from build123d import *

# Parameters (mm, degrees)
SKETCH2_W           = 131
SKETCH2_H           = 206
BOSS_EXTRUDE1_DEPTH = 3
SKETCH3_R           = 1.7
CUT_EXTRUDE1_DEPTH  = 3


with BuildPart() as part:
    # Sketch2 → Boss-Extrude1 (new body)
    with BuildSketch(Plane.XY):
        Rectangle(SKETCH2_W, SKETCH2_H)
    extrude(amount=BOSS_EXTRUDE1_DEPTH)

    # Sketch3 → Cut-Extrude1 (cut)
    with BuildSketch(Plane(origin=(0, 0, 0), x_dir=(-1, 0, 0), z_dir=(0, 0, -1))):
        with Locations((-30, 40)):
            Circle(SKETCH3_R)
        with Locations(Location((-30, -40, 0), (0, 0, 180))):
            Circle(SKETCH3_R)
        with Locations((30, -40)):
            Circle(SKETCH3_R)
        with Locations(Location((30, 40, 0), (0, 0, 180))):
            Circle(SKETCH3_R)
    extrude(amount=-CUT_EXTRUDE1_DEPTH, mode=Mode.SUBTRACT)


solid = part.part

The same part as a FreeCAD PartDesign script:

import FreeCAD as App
import Part
import Sketcher
Q = App.Units.Quantity


def add_polygon(sketch, points):
    """Adds a closed chain of lines whose ends are joined by coincident constraints."""
    first, n = sketch.GeometryCount, len(points)
    for a, b in zip(points, points[1:] + points[:1]):
        sketch.addGeometry(Part.LineSegment(App.Vector(*a, 0), App.Vector(*b, 0)), False)
    for i in range(n):
        sketch.addConstraint(Sketcher.Constraint("Coincident", first + i, 2, first + (i + 1) % n, 1))

doc = App.newDocument("Part")
body = doc.addObject("PartDesign::Body", "Body")

sketch1 = body.newObject("Sketcher::SketchObject", "Sketch")
sketch1.AttachmentSupport = (doc.getObject("XY_Plane"), [""])
sketch1.MapMode = "FlatFace"
add_polygon(sketch1, [(-66, 103), (-66, -103), (66, -103), (66, 103)])
sketch1.addConstraint([
    Sketcher.Constraint("Vertical", 0),
    Sketcher.Constraint("Horizontal", 1),
    Sketcher.Constraint("Vertical", 2),
    Sketcher.Constraint("Horizontal", 3),
    Sketcher.Constraint("Symmetric", 0, 2, 2, 2, -1, 1),
    Sketcher.Constraint("DistanceX", 1, 1, 1, 2, Q("131 mm")),
    Sketcher.Constraint("DistanceY", 0, 2, 0, 1, Q("206 mm")),
])
pad1 = body.newObject("PartDesign::Pad", "Pad")
pad1.Profile = sketch1
pad1.Length = 3

sketch2 = body.newObject("Sketcher::SketchObject", "Sketch001")
sketch2.AttachmentSupport = (doc.getObject("XY_Plane"), [""])
sketch2.MapMode = "FlatFace"
sketch2.addGeometry([
    Part.Circle(App.Vector(30, 40, 0), App.Vector(0, 0, 1), 1.7),
    Part.Circle(App.Vector(30, -40, 0), App.Vector(0, 0, 1), 1.7),
    Part.Circle(App.Vector(-30, -40, 0), App.Vector(0, 0, 1), 1.7),
    Part.Circle(App.Vector(-30, 40, 0), App.Vector(0, 0, 1), 1.7),
], False)
sketch2.addConstraint([
    Sketcher.Constraint("Equal", 0, 1),
    Sketcher.Constraint("Equal", 1, 2),
    Sketcher.Constraint("Equal", 2, 3),
    Sketcher.Constraint("Symmetric", 0, 3, 2, 3, -1, 1),
    Sketcher.Constraint("Symmetric", 1, 3, 3, 3, -1, 1),
    Sketcher.Constraint("Symmetric", 1, 3, 2, 3, -2),
    Sketcher.Constraint("Diameter", 0, Q("3.4 mm")),
    Sketcher.Constraint("DistanceX", -1, 1, 0, 3, Q("30 mm")),
    Sketcher.Constraint("DistanceY", -1, 1, 0, 3, Q("40 mm")),
])
pocket1 = body.newObject("PartDesign::Pocket", "Pocket")
pocket1.Profile = sketch2
pocket1.Length = 3
pocket1.Reversed = True

doc.recompute()
